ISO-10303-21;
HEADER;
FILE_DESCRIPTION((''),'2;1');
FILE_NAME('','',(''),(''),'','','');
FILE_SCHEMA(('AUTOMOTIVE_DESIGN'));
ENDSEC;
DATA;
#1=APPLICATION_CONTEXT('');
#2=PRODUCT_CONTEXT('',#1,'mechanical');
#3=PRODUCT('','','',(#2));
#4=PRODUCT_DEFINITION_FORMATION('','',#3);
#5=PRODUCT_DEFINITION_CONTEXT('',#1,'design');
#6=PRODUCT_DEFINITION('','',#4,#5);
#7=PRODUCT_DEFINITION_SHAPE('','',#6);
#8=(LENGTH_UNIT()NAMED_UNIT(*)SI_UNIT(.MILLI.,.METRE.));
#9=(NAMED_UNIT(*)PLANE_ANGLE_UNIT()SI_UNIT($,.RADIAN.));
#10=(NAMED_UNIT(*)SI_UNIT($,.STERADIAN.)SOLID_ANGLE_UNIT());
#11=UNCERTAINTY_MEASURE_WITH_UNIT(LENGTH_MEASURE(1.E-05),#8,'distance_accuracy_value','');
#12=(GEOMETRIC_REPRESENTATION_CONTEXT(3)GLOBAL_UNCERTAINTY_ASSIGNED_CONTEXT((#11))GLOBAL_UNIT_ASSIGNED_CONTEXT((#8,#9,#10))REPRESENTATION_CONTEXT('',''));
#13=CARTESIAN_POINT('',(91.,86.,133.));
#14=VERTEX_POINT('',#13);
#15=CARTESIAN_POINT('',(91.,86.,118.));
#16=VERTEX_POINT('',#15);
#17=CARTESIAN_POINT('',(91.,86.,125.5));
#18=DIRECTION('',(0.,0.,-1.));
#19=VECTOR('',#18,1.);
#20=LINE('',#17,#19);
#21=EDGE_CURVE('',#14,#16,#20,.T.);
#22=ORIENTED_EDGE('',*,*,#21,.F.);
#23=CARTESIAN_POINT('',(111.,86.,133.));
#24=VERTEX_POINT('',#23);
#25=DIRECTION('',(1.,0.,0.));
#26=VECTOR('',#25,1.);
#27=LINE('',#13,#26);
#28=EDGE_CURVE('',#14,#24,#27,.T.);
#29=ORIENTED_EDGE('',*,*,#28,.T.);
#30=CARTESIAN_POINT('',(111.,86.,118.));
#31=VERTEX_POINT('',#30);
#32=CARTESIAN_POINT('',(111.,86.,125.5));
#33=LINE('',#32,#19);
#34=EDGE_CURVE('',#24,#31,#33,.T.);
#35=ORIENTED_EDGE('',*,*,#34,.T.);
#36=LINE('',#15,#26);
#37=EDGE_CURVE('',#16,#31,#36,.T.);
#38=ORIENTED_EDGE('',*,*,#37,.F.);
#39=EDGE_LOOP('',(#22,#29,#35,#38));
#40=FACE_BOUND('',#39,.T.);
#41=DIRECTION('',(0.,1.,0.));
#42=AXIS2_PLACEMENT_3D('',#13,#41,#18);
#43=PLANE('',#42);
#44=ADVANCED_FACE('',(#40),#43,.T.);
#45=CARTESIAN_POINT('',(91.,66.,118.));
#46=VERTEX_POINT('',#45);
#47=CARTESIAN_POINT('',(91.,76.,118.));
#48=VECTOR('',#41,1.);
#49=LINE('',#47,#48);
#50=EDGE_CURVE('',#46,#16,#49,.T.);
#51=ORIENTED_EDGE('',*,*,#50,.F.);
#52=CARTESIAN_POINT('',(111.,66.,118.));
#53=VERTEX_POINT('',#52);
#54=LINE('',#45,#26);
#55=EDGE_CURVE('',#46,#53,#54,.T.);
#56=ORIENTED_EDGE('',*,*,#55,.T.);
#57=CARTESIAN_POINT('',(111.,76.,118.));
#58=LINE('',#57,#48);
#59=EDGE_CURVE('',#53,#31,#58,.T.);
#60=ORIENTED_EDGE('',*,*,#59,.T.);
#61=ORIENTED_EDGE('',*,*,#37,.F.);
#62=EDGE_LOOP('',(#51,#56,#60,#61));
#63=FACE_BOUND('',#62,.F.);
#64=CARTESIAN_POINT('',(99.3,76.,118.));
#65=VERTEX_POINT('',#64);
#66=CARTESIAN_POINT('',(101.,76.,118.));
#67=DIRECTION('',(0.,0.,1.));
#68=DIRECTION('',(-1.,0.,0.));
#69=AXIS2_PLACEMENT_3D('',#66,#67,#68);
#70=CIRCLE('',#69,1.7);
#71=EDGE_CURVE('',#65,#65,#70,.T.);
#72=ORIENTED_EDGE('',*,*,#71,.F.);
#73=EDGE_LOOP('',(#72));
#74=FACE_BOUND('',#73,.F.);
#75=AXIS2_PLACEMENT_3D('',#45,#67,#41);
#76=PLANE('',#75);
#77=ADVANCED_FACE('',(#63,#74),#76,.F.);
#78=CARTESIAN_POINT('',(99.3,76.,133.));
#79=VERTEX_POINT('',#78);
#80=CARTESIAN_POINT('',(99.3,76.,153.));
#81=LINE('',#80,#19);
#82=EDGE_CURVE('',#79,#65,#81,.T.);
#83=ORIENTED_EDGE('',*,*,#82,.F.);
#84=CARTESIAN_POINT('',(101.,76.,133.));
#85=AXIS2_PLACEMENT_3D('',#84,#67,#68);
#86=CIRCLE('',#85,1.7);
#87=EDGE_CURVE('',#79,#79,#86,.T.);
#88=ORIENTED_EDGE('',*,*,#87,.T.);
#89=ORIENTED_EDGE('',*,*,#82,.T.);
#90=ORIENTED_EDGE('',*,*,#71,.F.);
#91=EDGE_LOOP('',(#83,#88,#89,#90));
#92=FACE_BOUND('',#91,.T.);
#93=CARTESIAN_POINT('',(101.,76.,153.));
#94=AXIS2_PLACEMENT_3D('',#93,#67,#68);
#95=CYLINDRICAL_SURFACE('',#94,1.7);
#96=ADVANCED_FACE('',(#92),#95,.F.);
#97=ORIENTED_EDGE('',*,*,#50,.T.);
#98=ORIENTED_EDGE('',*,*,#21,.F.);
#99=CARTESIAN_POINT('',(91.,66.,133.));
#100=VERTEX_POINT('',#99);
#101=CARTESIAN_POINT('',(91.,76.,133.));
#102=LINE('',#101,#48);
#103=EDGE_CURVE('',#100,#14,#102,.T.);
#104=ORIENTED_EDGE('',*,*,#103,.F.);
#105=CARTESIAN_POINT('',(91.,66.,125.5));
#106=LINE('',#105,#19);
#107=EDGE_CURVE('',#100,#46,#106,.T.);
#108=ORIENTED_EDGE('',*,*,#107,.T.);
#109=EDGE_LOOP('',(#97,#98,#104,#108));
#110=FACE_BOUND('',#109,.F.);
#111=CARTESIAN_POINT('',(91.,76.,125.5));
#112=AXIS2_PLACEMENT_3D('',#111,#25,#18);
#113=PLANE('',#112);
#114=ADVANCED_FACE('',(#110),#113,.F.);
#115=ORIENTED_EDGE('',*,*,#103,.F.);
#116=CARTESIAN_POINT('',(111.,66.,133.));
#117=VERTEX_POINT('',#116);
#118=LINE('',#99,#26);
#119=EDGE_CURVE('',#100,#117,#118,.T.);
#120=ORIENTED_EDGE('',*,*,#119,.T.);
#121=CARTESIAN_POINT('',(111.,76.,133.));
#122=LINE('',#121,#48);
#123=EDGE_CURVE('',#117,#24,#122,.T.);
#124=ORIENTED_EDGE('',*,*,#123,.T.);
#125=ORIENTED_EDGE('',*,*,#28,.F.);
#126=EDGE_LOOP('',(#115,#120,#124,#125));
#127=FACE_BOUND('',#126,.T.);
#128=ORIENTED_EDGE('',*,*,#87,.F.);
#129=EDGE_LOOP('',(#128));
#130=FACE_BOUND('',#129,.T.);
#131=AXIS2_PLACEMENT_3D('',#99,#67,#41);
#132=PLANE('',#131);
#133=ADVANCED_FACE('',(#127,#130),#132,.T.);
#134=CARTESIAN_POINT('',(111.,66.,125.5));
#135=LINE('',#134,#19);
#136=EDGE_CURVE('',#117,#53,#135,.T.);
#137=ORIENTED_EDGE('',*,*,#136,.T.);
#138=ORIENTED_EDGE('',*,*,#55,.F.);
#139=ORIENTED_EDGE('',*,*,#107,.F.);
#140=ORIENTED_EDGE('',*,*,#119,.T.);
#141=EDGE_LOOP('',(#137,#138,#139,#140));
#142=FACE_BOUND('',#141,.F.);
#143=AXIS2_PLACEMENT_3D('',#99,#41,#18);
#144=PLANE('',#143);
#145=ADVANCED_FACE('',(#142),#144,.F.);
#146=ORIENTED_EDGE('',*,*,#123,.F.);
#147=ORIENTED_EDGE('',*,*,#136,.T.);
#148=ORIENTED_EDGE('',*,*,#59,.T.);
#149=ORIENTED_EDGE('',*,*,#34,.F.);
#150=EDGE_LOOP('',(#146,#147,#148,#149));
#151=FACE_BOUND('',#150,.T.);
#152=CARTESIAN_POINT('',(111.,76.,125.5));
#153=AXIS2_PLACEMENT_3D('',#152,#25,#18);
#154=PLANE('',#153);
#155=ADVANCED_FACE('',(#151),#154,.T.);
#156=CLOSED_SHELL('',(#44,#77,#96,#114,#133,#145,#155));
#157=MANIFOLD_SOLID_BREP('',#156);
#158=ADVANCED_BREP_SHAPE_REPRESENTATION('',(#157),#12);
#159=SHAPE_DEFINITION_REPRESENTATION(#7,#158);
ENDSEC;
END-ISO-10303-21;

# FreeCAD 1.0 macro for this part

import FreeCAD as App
import Part
import Sketcher

V = App.Vector
Q = App.Units.Quantity


def add_polygon(sketch, points):
    """Adds a closed chain of lines whose ends are joined by coincident constraints."""
    first, n = sketch.GeometryCount, len(points)
    for a, b in zip(points, points[1:] + points[:1]):
        sketch.addGeometry(Part.LineSegment(App.Vector(*a, 0), App.Vector(*b, 0)), False)
    for i in range(n):
        sketch.addConstraint(Sketcher.Constraint("Coincident", first + i, 2, first + (i + 1) % n, 1))

doc = App.newDocument("Part")
body = doc.addObject("PartDesign::Body", "Body")

# Sketch on XY plane
sketch1 = body.newObject("Sketcher::SketchObject", "Sketch")
sketch1.AttachmentSupport = (doc.getObject("XY_Plane"), [""])
sketch1.MapMode = "FlatFace"
sketch1.addGeometry(Part.Circle(V(0, 0, 0), V(0, 0, 1), 1.7), False)
sketch1.addConstraint([
    Sketcher.Constraint("Coincident", 0, 3, -1, 1),
    Sketcher.Constraint("Diameter", 0, Q("3.4 mm")),
])
pad1 = body.newObject("PartDesign::Pad", "Pad")
pad1.Profile = sketch1
pad1.Length = 80
body2 = doc.addObject("PartDesign::Body", "Body001")
doc.recompute()

body.Placement = App.Placement(V(0, 0, 0), App.Rotation(V(0, 1, 0), 90))
boolean = body2.newObject("PartDesign::Boolean", "Boolean")
boolean.Type = "Fuse"
boolean.addObjects([body])
body3 = doc.addObject("PartDesign::Body", "Body002")
doc.recompute()

body2.Placement = App.Placement(V(-20, 10, 10), App.Rotation(V(0, 0, 1), 0))
boolean2 = body3.newObject("PartDesign::Boolean", "Boolean001")
boolean2.Type = "Fuse"
boolean2.addObjects([body2])
body4 = doc.addObject("PartDesign::Body", "Body003")

# Sketch on XY plane
sketch2 = body4.newObject("Sketcher::SketchObject", "Sketch001")
sketch2.AttachmentSupport = (doc.getObject("XY_Plane003"), [""])
sketch2.MapMode = "FlatFace"
add_polygon(sketch2, [(0, 20), (0, 0), (15, 0), (15, 20)])  # lines 0-3
sketch2.addConstraint([
    Sketcher.Constraint("Vertical", 0),
    Sketcher.Constraint("Horizontal", 1),
    Sketcher.Constraint("Vertical", 2),
    Sketcher.Constraint("Horizontal", 3),
    Sketcher.Constraint("Coincident", 0, 2, -1, 1),
    Sketcher.Constraint("DistanceX", 1, 1, 1, 2, Q("15 mm")),
    Sketcher.Constraint("DistanceY", 0, 2, 0, 1, Q("20 mm")),
])
pad2 = body4.newObject("PartDesign::Pad", "Pad001")
pad2.Profile = sketch2
pad2.Length = 20
doc.recompute()

boolean3 = body4.newObject("PartDesign::Boolean", "Boolean002")
boolean3.Type = "Cut"
boolean3.addObjects([body3])
body5 = doc.addObject("PartDesign::Body", "Body004")
doc.recompute()

body4.Placement = App.Placement(V(0, 0, 0), App.Rotation(V(0, 1, 0), 90))
boolean4 = body5.newObject("PartDesign::Boolean", "Boolean003")
boolean4.Type = "Fuse"
boolean4.addObjects([body4])
body6 = doc.addObject("PartDesign::Body", "Body005")
doc.recompute()

body5.Placement = App.Placement(V(91, 66, 133), App.Rotation(V(0, 0, 1), 0))
boolean5 = body6.newObject("PartDesign::Boolean", "Boolean004")
boolean5.Type = "Fuse"
boolean5.addObjects([body5])

doc.recompute()
